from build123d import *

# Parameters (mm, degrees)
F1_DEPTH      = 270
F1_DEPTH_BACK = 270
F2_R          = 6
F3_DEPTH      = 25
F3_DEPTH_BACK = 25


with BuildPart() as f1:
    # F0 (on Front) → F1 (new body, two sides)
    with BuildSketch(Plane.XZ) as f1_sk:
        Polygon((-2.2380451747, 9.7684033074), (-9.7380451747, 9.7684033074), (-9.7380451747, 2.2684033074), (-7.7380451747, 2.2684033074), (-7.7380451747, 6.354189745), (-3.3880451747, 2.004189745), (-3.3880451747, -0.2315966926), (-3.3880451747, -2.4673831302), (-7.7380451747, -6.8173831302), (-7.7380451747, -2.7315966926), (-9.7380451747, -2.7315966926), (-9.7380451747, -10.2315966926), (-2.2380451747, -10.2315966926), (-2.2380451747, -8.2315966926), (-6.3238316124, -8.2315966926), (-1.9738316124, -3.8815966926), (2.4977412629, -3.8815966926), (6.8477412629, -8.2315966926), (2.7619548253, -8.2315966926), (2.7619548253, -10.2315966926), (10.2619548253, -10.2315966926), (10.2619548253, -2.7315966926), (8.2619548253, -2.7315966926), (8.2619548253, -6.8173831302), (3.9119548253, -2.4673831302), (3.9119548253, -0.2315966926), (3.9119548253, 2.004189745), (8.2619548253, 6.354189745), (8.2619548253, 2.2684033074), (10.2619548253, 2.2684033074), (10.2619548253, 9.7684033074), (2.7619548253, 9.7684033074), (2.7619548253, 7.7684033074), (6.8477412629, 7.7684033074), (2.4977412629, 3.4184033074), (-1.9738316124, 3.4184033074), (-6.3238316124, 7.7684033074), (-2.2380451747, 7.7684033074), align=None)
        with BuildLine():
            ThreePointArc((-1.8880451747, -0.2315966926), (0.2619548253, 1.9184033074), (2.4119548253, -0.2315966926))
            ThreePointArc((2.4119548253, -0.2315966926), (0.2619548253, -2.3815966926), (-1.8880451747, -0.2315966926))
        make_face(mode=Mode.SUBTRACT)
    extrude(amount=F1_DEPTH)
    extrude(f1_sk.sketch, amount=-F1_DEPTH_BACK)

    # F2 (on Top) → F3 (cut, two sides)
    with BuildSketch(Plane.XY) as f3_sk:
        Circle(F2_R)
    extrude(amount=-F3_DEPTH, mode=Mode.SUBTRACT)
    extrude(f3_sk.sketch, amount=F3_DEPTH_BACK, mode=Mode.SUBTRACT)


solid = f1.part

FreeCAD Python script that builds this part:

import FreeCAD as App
import Part
import Sketcher
Q = App.Units.Quantity

doc = App.newDocument("Part")
body = doc.addObject("PartDesign::Body", "Body")

sketch1 = body.newObject("Sketcher::SketchObject", "Sketch")
sketch1.AttachmentSupport = (doc.getObject("XZ_Plane"), [""])
sketch1.MapMode = "FlatFace"
sketch1.addGeometry([
    Part.LineSegment(App.Vector(-2.238045, 9.768403, 0), App.Vector(-9.738045, 9.768403, 0)),
    Part.LineSegment(App.Vector(-9.738045, 9.768403, 0), App.Vector(-9.738045, 2.268403, 0)),
    Part.LineSegment(App.Vector(-9.738045, 2.268403, 0), App.Vector(-7.738045, 2.268403, 0)),
    Part.LineSegment(App.Vector(-7.738045, 2.268403, 0), App.Vector(-7.738045, 6.35419, 0)),
    Part.LineSegment(App.Vector(-7.738045, 6.35419, 0), App.Vector(-3.388045, 2.00419, 0)),
    Part.LineSegment(App.Vector(-3.388045, 2.00419, 0), App.Vector(-3.388045, -2.467383, 0)),
    Part.LineSegment(App.Vector(-3.388045, -2.467383, 0), App.Vector(-7.738045, -6.817383, 0)),
    Part.LineSegment(App.Vector(-7.738045, -6.817383, 0), App.Vector(-7.738045, -2.731597, 0)),
    Part.LineSegment(App.Vector(-7.738045, -2.731597, 0), App.Vector(-9.738045, -2.731597, 0)),
    Part.LineSegment(App.Vector(-9.738045, -2.731597, 0), App.Vector(-9.738045, -10.231597, 0)),
    Part.LineSegment(App.Vector(-9.738045, -10.231597, 0), App.Vector(-2.238045, -10.231597, 0)),
    Part.LineSegment(App.Vector(-2.238045, -10.231597, 0), App.Vector(-2.238045, -8.231597, 0)),
    Part.LineSegment(App.Vector(-2.238045, -8.231597, 0), App.Vector(-6.323832, -8.231597, 0)),
    Part.LineSegment(App.Vector(-6.323832, -8.231597, 0), App.Vector(-1.973832, -3.881597, 0)),
    Part.LineSegment(App.Vector(-1.973832, -3.881597, 0), App.Vector(2.497741, -3.881597, 0)),
    Part.LineSegment(App.Vector(2.497741, -3.881597, 0), App.Vector(6.847741, -8.231597, 0)),
    Part.LineSegment(App.Vector(6.847741, -8.231597, 0), App.Vector(2.761955, -8.231597, 0)),
    Part.LineSegment(App.Vector(2.761955, -8.231597, 0), App.Vector(2.761955, -10.231597, 0)),
    Part.LineSegment(App.Vector(2.761955, -10.231597, 0), App.Vector(10.261955, -10.231597, 0)),
    Part.LineSegment(App.Vector(10.261955, -10.231597, 0), App.Vector(10.261955, -2.731597, 0)),
    Part.LineSegment(App.Vector(10.261955, -2.731597, 0), App.Vector(8.261955, -2.731597, 0)),
    Part.LineSegment(App.Vector(8.261955, -2.731597, 0), App.Vector(8.261955, -6.817383, 0)),
    Part.LineSegment(App.Vector(8.261955, -6.817383, 0), App.Vector(3.911955, -2.467383, 0)),
    Part.LineSegment(App.Vector(3.911955, -2.467383, 0), App.Vector(3.911955, 2.00419, 0)),
    Part.LineSegment(App.Vector(3.911955, 2.00419, 0), App.Vector(8.261955, 6.35419, 0)),
    Part.LineSegment(App.Vector(8.261955, 6.35419, 0), App.Vector(8.261955, 2.268403, 0)),
    Part.LineSegment(App.Vector(8.261955, 2.268403, 0), App.Vector(10.261955, 2.268403, 0)),
    Part.LineSegment(App.Vector(10.261955, 2.268403, 0), App.Vector(10.261955, 9.768403, 0)),
    Part.LineSegment(App.Vector(10.261955, 9.768403, 0), App.Vector(2.761955, 9.768403, 0)),
    Part.LineSegment(App.Vector(2.761955, 9.768403, 0), App.Vector(2.761955, 7.768403, 0)),
    Part.LineSegment(App.Vector(2.761955, 7.768403, 0), App.Vector(6.847741, 7.768403, 0)),
    Part.LineSegment(App.Vector(6.847741, 7.768403, 0), App.Vector(2.497741, 3.418403, 0)),
    Part.LineSegment(App.Vector(2.497741, 3.418403, 0), App.Vector(-1.973832, 3.418403, 0)),
    Part.LineSegment(App.Vector(-1.973832, 3.418403, 0), App.Vector(-6.323832, 7.768403, 0)),
    Part.LineSegment(App.Vector(-6.323832, 7.768403, 0), App.Vector(-2.238045, 7.768403, 0)),
    Part.LineSegment(App.Vector(-2.238045, 7.768403, 0), App.Vector(-2.238045, 9.768403, 0)),
    Part.Circle(App.Vector(0.261955, -0.231597, 0), App.Vector(0, 0, 1), 2.15),
], False)
sketch1.addConstraint([
    Sketcher.Constraint("Coincident", 0, 2, 1, 1),
    Sketcher.Constraint("Coincident", 1, 2, 2, 1),
    Sketcher.Constraint("Coincident", 2, 2, 3, 1),
    Sketcher.Constraint("Coincident", 3, 2, 4, 1),
    Sketcher.Constraint("Coincident", 4, 2, 5, 1),
    Sketcher.Constraint("Coincident", 5, 2, 6, 1),
    Sketcher.Constraint("Coincident", 6, 2, 7, 1),
    Sketcher.Constraint("Coincident", 7, 2, 8, 1),
    Sketcher.Constraint("Coincident", 8, 2, 9, 1),
    Sketcher.Constraint("Coincident", 9, 2, 10, 1),
    Sketcher.Constraint("Coincident", 10, 2, 11, 1),
    Sketcher.Constraint("Coincident", 11, 2, 12, 1),
    Sketcher.Constraint("Coincident", 12, 2, 13, 1),
    Sketcher.Constraint("Coincident", 13, 2, 14, 1),
    Sketcher.Constraint("Coincident", 14, 2, 15, 1),
    Sketcher.Constraint("Coincident", 15, 2, 16, 1),
    Sketcher.Constraint("Coincident", 16, 2, 17, 1),
    Sketcher.Constraint("Coincident", 17, 2, 18, 1),
    Sketcher.Constraint("Coincident", 18, 2, 19, 1),
    Sketcher.Constraint("Coincident", 19, 2, 20, 1),
    Sketcher.Constraint("Coincident", 20, 2, 21, 1),
    Sketcher.Constraint("Coincident", 21, 2, 22, 1),
    Sketcher.Constraint("Coincident", 22, 2, 23, 1),
    Sketcher.Constraint("Coincident", 23, 2, 24, 1),
    Sketcher.Constraint("Coincident", 24, 2, 25, 1),
    Sketcher.Constraint("Coincident", 25, 2, 26, 1),
    Sketcher.Constraint("Coincident", 26, 2, 27, 1),
    Sketcher.Constraint("Coincident", 27, 2, 28, 1),
    Sketcher.Constraint("Coincident", 28, 2, 29, 1),
    Sketcher.Constraint("Coincident", 29, 2, 30, 1),
    Sketcher.Constraint("Coincident", 30, 2, 31, 1),
    Sketcher.Constraint("Coincident", 31, 2, 32, 1),
    Sketcher.Constraint("Coincident", 32, 2, 33, 1),
    Sketcher.Constraint("Coincident", 33, 2, 34, 1),
    Sketcher.Constraint("Coincident", 34, 2, 35, 1),
    Sketcher.Constraint("Coincident", 35, 2, 0, 1),
    Sketcher.Constraint("Horizontal", 0),
    Sketcher.Constraint("Vertical", 1),
    Sketcher.Constraint("Horizontal", 2),
    Sketcher.Constraint("Vertical", 3),
    Sketcher.Constraint("Vertical", 5),
    Sketcher.Constraint("Vertical", 7),
    Sketcher.Constraint("Horizontal", 8),
    Sketcher.Constraint("Vertical", 9),
    Sketcher.Constraint("Horizontal", 10),
    Sketcher.Constraint("Vertical", 11),
    Sketcher.Constraint("Horizontal", 12),
    Sketcher.Constraint("Horizontal", 14),
    Sketcher.Constraint("Horizontal", 16),
    Sketcher.Constraint("Vertical", 17),
    Sketcher.Constraint("Horizontal", 18),
    Sketcher.Constraint("Vertical", 19),
    Sketcher.Constraint("Horizontal", 20),
    Sketcher.Constraint("Vertical", 21),
    Sketcher.Constraint("Vertical", 23),
    Sketcher.Constraint("Vertical", 25),
    Sketcher.Constraint("Horizontal", 26),
    Sketcher.Constraint("Vertical", 27),
    Sketcher.Constraint("Horizontal", 28),
    Sketcher.Constraint("Vertical", 29),
    Sketcher.Constraint("Horizontal", 30),
    Sketcher.Constraint("Horizontal", 32),
    Sketcher.Constraint("Horizontal", 34),
    Sketcher.Constraint("Vertical", 35),
    Sketcher.Constraint("Perpendicular", 4, 6),
    Sketcher.Constraint("Parallel", 6, 13),
    Sketcher.Constraint("Perpendicular", 13, 15),
    Sketcher.Constraint("Parallel", 15, 22),
    Sketcher.Constraint("Perpendicular", 22, 24),
    Sketcher.Constraint("Parallel", 24, 31),
    Sketcher.Constraint("Perpendicular", 31, 33),
    Sketcher.Constraint("Horizontal", 12, 2, 15, 2),
    Sketcher.Constraint("Horizontal", 10, 2, 17, 2),
    Sketcher.Constraint("Horizontal", 8, 2, 19, 2),
    Sketcher.Constraint("Horizontal", 6, 2, 21, 2),
    Sketcher.Constraint("Horizontal", 5, 2, 22, 2),
    Sketcher.Constraint("Horizontal", 4, 2, 23, 2),
    Sketcher.Constraint("Horizontal", 3, 2, 24, 2),
    Sketcher.Constraint("Horizontal", 2, 2, 25, 2),
    Sketcher.Constraint("Horizontal", 0, 2, 27, 2),
    Sketcher.Constraint("Horizontal", 30, 2, 33, 2),
    Sketcher.Constraint("Vertical", 3, 2, 6, 2),
    Sketcher.Constraint("Vertical", 1, 2, 8, 2),
    Sketcher.Constraint("Vertical", 21, 2, 24, 2),
    Sketcher.Constraint("Vertical", 19, 2, 26, 2),
    Sketcher.Constraint("Vertical", 17, 2, 28, 2),
    Sketcher.Constraint("Vertical", 15, 2, 30, 2),
    Sketcher.Constraint("Vertical", 14, 2, 31, 2),
    Sketcher.Constraint("Vertical", 13, 2, 32, 2),
    Sketcher.Constraint("Vertical", 11, 2, 34, 2),
    Sketcher.Constraint("Equal", 12, 16),
    Sketcher.Constraint("Equal", 10, 18),
    Sketcher.Constraint("Equal", 8, 20),
    Sketcher.Constraint("Equal", 28, 1),
    Sketcher.Constraint("Equal", 34, 3),
    Sketcher.Constraint("Equal", 32, 5),
    Sketcher.Constraint("Equal", 3, 7),
    Sketcher.Constraint("Equal", 1, 9),
    Sketcher.Constraint("Equal", 26, 11),
    Sketcher.Constraint("Equal", 17, 29),
    Sketcher.Constraint("Equal", 6, 13),
    Sketcher.Constraint("Diameter", 36, Q("4.3 mm")),
    Sketcher.Constraint("DistanceX", 2, 1, 2, 2, Q("2 mm")),
    Sketcher.Constraint("DistanceX", 0, 2, 0, 1, Q("7.5 mm")),
    Sketcher.Constraint("DistanceX", 0, 2, 36, 3, Q("10 mm")),
    Sketcher.Constraint("DistanceY", 36, 3, 0, 2, Q("10 mm")),
    Sketcher.Constraint("DistanceY", 7, 2, 2, 2, Q("5 mm")),
    Sketcher.Constraint("DistanceX", 4, 2, 23, 2, Q("7.3 mm")),
    Sketcher.Constraint("DistanceX", 12, 2, 12, 1, Q("4.085786 mm")),
    Sketcher.Constraint("DistanceY", -1, 1, 3, 2, Q("6.35419 mm")),
    Sketcher.Constraint("DistanceX", 12, 2, -1, 1, Q("6.323832 mm")),
])
pad1 = body.newObject("PartDesign::Pad", "Pad")
pad1.Profile = sketch1
pad1.Type = "TwoLengths"
pad1.Length = 270
pad1.Length2 = 270

sketch2 = body.newObject("Sketcher::SketchObject", "Sketch001")
sketch2.AttachmentSupport = (doc.getObject("XY_Plane"), [""])
sketch2.MapMode = "FlatFace"
sketch2.addGeometry(Part.Circle(App.Vector(0, 0, 0), App.Vector(0, 0, 1), 6), False)
sketch2.addConstraint([
    Sketcher.Constraint("Coincident", 0, 3, -1, 1),
    Sketcher.Constraint("Diameter", 0, Q("12 mm")),
])
pocket1 = body.newObject("PartDesign::Pocket", "Pocket")
pocket1.Profile = sketch2
pocket1.Type = "ThroughAll"
pocket1.Midplane = True

doc.recompute()
